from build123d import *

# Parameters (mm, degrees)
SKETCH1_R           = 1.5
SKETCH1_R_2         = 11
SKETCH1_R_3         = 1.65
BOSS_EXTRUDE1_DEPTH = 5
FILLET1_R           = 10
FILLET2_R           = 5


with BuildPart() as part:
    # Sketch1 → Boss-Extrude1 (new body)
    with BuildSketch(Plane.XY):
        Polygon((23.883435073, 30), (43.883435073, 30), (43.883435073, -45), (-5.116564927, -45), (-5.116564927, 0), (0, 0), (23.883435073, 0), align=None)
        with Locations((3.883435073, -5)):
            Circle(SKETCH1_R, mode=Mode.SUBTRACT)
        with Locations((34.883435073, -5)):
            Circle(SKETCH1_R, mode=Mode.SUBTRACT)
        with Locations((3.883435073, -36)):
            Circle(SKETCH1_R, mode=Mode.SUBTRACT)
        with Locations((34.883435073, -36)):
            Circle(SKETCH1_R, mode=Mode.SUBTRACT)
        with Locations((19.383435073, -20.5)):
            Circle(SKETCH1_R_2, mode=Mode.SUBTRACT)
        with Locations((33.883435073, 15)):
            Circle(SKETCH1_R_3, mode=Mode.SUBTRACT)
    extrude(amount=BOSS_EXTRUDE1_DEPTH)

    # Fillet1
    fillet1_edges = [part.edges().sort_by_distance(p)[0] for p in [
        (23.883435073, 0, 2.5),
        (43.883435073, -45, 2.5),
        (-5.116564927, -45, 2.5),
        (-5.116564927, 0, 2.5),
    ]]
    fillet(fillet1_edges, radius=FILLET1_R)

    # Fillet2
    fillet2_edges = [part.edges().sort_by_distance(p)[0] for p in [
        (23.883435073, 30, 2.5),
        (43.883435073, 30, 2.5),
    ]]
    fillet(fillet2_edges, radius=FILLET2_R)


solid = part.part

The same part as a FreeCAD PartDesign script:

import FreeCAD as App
import Part
import Sketcher

V = App.Vector


def edges_at(feature, points):
    """Names of the edges that pass closest to the given points."""
    edges = feature.Shape.Edges
    near = lambda p: min(range(len(edges)), key=lambda i: edges[i].distToShape(Part.Vertex(*p))[0])
    return sorted({f"Edge{near(p) + 1}" for p in points})


def add_polygon(sketch, points):
    """Adds a closed chain of lines whose ends are joined by coincident constraints."""
    first, n = sketch.GeometryCount, len(points)
    for a, b in zip(points, points[1:] + points[:1]):
        sketch.addGeometry(Part.LineSegment(App.Vector(*a, 0), App.Vector(*b, 0)), False)
    for i in range(n):
        sketch.addConstraint(Sketcher.Constraint("Coincident", first + i, 2, first + (i + 1) % n, 1))

doc = App.newDocument("Part")
params = doc.addObject("Spreadsheet::Sheet", "Params")
for row, (alias, value) in enumerate([
    ("sketch1_diameter", "3 mm"),
    ("sketch1_diameter2", "22 mm"),
    ("sketch1_diameter3", "3.3 mm"),
    ("sketch1_width", "20 mm"),
    ("sketch1_width2", "29 mm"),
    ("pad1_length", "5 mm"),
    ("fillet_radius", "10 mm"),
    ("fillet2_radius", "5 mm"),
], start=1):
    params.set(f"A{row}", alias)
    params.set(f"B{row}", "=" + value)
    params.setAlias(f"B{row}", alias)

body = doc.addObject("PartDesign::Body", "Body")

# Sketch on XY plane
sketch1 = doc.addObject("Sketcher::SketchObject", "Sketch")
body.addObject(sketch1)
sketch1.AttachmentSupport = (doc.XY_Plane, [""])
sketch1.MapMode = "FlatFace"
add_polygon(sketch1, [(43.883435, 30), (23.883435, 30), (23.883435, 0), (-5.116565, 0), (-5.116565, -45), (43.883435, -45)])  # lines 0-5
sketch1.addGeometry(Part.Circle(V(34.883435, -36, 0), V(0, 0, 1), 1.5), False)  # 6
sketch1.addGeometry(Part.Circle(V(3.883435, -36, 0), V(0, 0, 1), 1.5), False)  # 7
sketch1.addGeometry(Part.Circle(V(19.383435, -20.5, 0), V(0, 0, 1), 11), False)  # 8
sketch1.addGeometry(Part.Circle(V(34.883435, -5, 0), V(0, 0, 1), 1.5), False)  # 9
sketch1.addGeometry(Part.Circle(V(33.883435, 15, 0), V(0, 0, 1), 1.65), False)  # 10
sketch1.addGeometry(Part.Circle(V(3.883435, -5, 0), V(0, 0, 1), 1.5), False)  # 11
sketch1.addConstraint(Sketcher.Constraint("Horizontal", 0))
sketch1.addConstraint(Sketcher.Constraint("Vertical", 1))
sketch1.addConstraint(Sketcher.Constraint("Horizontal", 2))
sketch1.addConstraint(Sketcher.Constraint("Vertical", 3))
sketch1.addConstraint(Sketcher.Constraint("Horizontal", 4))
sketch1.addConstraint(Sketcher.Constraint("Vertical", 5))
sketch1.addConstraint(Sketcher.Constraint("Equal", 6, 7))
sketch1.addConstraint(Sketcher.Constraint("Equal", 7, 9))
sketch1.addConstraint(Sketcher.Constraint("Equal", 9, 11))
sketch1.addConstraint(Sketcher.Constraint("PointOnObject", 1, 2, -1))
sketch1.addConstraint(Sketcher.Constraint("Horizontal", 6, 3, 7, 3))
sketch1.addConstraint(Sketcher.Constraint("Horizontal", 9, 3, 11, 3))
sketch1.addConstraint(Sketcher.Constraint("Vertical", 6, 3, 9, 3))
sketch1.addConstraint(Sketcher.Constraint("Vertical", 7, 3, 11, 3))
sketch1.addConstraint(Sketcher.Constraint("Diameter", 6, 3.0))
sketch1.addConstraint(Sketcher.Constraint("Diameter", 8, 22.0))
sketch1.addConstraint(Sketcher.Constraint("Diameter", 10, 3.3))
sketch1.addConstraint(Sketcher.Constraint("DistanceX", 0, 2, 0, 1, 20.0))
sketch1.addConstraint(Sketcher.Constraint("DistanceX", 2, 2, 2, 1, 29.0))
sketch1.addConstraint(Sketcher.Constraint("DistanceY", 1, 2, 1, 1, 30.0))
sketch1.addConstraint(Sketcher.Constraint("DistanceY", 3, 2, 3, 1, 45.0))
sketch1.addConstraint(Sketcher.Constraint("DistanceY", 6, 3, -1, 1, 36.0))
sketch1.addConstraint(Sketcher.Constraint("DistanceY", 9, 3, -1, 1, 5.0))
sketch1.addConstraint(Sketcher.Constraint("DistanceY", -1, 1, 10, 3, 15.0))
sketch1.addConstraint(Sketcher.Constraint("DistanceX", 7, 3, 6, 3, 31.0))
sketch1.addConstraint(Sketcher.Constraint("DistanceX", 10, 3, 9, 3, 1.0))
sketch1.addConstraint(Sketcher.Constraint("DistanceX", 0, 2, 10, 3, 10.0))
sketch1.addConstraint(Sketcher.Constraint("DistanceY", 8, 3, -1, 1, 20.5))
sketch1.addConstraint(Sketcher.Constraint("DistanceX", 8, 3, 6, 3, 15.5))
sketch1.addConstraint(Sketcher.Constraint("DistanceX", -1, 1, 6, 3, 34.883435))
sketch1.setExpression("Constraints[20]", "Params.sketch1_diameter")
sketch1.setExpression("Constraints[21]", "Params.sketch1_diameter2")
sketch1.setExpression("Constraints[22]", "Params.sketch1_diameter3")
sketch1.setExpression("Constraints[23]", "Params.sketch1_width")
sketch1.setExpression("Constraints[24]", "Params.sketch1_width2")
pad1 = doc.addObject("PartDesign::Pad", "Pad")
body.addObject(pad1)
pad1.Profile = sketch1
pad1.setExpression("Length", "Params.pad1_length")
doc.recompute()

fillet = doc.addObject("PartDesign::Fillet", "Fillet")
body.addObject(fillet)
fillet.Base = (pad1, edges_at(pad1, [
    (23.883, 0, 2.5),
    (43.883, -45, 2.5),
    (-5.117, -45, 2.5),
    (-5.117, 0, 2.5),
]))
fillet.setExpression("Radius", "Params.fillet_radius")
doc.recompute()

fillet2 = doc.addObject("PartDesign::Fillet", "Fillet001")
body.addObject(fillet2)
fillet2.Base = (fillet, edges_at(fillet, [(23.883, 30, 2.5), (43.883, 30, 2.5)]))
fillet2.setExpression("Radius", "Params.fillet2_radius")

doc.recompute()
